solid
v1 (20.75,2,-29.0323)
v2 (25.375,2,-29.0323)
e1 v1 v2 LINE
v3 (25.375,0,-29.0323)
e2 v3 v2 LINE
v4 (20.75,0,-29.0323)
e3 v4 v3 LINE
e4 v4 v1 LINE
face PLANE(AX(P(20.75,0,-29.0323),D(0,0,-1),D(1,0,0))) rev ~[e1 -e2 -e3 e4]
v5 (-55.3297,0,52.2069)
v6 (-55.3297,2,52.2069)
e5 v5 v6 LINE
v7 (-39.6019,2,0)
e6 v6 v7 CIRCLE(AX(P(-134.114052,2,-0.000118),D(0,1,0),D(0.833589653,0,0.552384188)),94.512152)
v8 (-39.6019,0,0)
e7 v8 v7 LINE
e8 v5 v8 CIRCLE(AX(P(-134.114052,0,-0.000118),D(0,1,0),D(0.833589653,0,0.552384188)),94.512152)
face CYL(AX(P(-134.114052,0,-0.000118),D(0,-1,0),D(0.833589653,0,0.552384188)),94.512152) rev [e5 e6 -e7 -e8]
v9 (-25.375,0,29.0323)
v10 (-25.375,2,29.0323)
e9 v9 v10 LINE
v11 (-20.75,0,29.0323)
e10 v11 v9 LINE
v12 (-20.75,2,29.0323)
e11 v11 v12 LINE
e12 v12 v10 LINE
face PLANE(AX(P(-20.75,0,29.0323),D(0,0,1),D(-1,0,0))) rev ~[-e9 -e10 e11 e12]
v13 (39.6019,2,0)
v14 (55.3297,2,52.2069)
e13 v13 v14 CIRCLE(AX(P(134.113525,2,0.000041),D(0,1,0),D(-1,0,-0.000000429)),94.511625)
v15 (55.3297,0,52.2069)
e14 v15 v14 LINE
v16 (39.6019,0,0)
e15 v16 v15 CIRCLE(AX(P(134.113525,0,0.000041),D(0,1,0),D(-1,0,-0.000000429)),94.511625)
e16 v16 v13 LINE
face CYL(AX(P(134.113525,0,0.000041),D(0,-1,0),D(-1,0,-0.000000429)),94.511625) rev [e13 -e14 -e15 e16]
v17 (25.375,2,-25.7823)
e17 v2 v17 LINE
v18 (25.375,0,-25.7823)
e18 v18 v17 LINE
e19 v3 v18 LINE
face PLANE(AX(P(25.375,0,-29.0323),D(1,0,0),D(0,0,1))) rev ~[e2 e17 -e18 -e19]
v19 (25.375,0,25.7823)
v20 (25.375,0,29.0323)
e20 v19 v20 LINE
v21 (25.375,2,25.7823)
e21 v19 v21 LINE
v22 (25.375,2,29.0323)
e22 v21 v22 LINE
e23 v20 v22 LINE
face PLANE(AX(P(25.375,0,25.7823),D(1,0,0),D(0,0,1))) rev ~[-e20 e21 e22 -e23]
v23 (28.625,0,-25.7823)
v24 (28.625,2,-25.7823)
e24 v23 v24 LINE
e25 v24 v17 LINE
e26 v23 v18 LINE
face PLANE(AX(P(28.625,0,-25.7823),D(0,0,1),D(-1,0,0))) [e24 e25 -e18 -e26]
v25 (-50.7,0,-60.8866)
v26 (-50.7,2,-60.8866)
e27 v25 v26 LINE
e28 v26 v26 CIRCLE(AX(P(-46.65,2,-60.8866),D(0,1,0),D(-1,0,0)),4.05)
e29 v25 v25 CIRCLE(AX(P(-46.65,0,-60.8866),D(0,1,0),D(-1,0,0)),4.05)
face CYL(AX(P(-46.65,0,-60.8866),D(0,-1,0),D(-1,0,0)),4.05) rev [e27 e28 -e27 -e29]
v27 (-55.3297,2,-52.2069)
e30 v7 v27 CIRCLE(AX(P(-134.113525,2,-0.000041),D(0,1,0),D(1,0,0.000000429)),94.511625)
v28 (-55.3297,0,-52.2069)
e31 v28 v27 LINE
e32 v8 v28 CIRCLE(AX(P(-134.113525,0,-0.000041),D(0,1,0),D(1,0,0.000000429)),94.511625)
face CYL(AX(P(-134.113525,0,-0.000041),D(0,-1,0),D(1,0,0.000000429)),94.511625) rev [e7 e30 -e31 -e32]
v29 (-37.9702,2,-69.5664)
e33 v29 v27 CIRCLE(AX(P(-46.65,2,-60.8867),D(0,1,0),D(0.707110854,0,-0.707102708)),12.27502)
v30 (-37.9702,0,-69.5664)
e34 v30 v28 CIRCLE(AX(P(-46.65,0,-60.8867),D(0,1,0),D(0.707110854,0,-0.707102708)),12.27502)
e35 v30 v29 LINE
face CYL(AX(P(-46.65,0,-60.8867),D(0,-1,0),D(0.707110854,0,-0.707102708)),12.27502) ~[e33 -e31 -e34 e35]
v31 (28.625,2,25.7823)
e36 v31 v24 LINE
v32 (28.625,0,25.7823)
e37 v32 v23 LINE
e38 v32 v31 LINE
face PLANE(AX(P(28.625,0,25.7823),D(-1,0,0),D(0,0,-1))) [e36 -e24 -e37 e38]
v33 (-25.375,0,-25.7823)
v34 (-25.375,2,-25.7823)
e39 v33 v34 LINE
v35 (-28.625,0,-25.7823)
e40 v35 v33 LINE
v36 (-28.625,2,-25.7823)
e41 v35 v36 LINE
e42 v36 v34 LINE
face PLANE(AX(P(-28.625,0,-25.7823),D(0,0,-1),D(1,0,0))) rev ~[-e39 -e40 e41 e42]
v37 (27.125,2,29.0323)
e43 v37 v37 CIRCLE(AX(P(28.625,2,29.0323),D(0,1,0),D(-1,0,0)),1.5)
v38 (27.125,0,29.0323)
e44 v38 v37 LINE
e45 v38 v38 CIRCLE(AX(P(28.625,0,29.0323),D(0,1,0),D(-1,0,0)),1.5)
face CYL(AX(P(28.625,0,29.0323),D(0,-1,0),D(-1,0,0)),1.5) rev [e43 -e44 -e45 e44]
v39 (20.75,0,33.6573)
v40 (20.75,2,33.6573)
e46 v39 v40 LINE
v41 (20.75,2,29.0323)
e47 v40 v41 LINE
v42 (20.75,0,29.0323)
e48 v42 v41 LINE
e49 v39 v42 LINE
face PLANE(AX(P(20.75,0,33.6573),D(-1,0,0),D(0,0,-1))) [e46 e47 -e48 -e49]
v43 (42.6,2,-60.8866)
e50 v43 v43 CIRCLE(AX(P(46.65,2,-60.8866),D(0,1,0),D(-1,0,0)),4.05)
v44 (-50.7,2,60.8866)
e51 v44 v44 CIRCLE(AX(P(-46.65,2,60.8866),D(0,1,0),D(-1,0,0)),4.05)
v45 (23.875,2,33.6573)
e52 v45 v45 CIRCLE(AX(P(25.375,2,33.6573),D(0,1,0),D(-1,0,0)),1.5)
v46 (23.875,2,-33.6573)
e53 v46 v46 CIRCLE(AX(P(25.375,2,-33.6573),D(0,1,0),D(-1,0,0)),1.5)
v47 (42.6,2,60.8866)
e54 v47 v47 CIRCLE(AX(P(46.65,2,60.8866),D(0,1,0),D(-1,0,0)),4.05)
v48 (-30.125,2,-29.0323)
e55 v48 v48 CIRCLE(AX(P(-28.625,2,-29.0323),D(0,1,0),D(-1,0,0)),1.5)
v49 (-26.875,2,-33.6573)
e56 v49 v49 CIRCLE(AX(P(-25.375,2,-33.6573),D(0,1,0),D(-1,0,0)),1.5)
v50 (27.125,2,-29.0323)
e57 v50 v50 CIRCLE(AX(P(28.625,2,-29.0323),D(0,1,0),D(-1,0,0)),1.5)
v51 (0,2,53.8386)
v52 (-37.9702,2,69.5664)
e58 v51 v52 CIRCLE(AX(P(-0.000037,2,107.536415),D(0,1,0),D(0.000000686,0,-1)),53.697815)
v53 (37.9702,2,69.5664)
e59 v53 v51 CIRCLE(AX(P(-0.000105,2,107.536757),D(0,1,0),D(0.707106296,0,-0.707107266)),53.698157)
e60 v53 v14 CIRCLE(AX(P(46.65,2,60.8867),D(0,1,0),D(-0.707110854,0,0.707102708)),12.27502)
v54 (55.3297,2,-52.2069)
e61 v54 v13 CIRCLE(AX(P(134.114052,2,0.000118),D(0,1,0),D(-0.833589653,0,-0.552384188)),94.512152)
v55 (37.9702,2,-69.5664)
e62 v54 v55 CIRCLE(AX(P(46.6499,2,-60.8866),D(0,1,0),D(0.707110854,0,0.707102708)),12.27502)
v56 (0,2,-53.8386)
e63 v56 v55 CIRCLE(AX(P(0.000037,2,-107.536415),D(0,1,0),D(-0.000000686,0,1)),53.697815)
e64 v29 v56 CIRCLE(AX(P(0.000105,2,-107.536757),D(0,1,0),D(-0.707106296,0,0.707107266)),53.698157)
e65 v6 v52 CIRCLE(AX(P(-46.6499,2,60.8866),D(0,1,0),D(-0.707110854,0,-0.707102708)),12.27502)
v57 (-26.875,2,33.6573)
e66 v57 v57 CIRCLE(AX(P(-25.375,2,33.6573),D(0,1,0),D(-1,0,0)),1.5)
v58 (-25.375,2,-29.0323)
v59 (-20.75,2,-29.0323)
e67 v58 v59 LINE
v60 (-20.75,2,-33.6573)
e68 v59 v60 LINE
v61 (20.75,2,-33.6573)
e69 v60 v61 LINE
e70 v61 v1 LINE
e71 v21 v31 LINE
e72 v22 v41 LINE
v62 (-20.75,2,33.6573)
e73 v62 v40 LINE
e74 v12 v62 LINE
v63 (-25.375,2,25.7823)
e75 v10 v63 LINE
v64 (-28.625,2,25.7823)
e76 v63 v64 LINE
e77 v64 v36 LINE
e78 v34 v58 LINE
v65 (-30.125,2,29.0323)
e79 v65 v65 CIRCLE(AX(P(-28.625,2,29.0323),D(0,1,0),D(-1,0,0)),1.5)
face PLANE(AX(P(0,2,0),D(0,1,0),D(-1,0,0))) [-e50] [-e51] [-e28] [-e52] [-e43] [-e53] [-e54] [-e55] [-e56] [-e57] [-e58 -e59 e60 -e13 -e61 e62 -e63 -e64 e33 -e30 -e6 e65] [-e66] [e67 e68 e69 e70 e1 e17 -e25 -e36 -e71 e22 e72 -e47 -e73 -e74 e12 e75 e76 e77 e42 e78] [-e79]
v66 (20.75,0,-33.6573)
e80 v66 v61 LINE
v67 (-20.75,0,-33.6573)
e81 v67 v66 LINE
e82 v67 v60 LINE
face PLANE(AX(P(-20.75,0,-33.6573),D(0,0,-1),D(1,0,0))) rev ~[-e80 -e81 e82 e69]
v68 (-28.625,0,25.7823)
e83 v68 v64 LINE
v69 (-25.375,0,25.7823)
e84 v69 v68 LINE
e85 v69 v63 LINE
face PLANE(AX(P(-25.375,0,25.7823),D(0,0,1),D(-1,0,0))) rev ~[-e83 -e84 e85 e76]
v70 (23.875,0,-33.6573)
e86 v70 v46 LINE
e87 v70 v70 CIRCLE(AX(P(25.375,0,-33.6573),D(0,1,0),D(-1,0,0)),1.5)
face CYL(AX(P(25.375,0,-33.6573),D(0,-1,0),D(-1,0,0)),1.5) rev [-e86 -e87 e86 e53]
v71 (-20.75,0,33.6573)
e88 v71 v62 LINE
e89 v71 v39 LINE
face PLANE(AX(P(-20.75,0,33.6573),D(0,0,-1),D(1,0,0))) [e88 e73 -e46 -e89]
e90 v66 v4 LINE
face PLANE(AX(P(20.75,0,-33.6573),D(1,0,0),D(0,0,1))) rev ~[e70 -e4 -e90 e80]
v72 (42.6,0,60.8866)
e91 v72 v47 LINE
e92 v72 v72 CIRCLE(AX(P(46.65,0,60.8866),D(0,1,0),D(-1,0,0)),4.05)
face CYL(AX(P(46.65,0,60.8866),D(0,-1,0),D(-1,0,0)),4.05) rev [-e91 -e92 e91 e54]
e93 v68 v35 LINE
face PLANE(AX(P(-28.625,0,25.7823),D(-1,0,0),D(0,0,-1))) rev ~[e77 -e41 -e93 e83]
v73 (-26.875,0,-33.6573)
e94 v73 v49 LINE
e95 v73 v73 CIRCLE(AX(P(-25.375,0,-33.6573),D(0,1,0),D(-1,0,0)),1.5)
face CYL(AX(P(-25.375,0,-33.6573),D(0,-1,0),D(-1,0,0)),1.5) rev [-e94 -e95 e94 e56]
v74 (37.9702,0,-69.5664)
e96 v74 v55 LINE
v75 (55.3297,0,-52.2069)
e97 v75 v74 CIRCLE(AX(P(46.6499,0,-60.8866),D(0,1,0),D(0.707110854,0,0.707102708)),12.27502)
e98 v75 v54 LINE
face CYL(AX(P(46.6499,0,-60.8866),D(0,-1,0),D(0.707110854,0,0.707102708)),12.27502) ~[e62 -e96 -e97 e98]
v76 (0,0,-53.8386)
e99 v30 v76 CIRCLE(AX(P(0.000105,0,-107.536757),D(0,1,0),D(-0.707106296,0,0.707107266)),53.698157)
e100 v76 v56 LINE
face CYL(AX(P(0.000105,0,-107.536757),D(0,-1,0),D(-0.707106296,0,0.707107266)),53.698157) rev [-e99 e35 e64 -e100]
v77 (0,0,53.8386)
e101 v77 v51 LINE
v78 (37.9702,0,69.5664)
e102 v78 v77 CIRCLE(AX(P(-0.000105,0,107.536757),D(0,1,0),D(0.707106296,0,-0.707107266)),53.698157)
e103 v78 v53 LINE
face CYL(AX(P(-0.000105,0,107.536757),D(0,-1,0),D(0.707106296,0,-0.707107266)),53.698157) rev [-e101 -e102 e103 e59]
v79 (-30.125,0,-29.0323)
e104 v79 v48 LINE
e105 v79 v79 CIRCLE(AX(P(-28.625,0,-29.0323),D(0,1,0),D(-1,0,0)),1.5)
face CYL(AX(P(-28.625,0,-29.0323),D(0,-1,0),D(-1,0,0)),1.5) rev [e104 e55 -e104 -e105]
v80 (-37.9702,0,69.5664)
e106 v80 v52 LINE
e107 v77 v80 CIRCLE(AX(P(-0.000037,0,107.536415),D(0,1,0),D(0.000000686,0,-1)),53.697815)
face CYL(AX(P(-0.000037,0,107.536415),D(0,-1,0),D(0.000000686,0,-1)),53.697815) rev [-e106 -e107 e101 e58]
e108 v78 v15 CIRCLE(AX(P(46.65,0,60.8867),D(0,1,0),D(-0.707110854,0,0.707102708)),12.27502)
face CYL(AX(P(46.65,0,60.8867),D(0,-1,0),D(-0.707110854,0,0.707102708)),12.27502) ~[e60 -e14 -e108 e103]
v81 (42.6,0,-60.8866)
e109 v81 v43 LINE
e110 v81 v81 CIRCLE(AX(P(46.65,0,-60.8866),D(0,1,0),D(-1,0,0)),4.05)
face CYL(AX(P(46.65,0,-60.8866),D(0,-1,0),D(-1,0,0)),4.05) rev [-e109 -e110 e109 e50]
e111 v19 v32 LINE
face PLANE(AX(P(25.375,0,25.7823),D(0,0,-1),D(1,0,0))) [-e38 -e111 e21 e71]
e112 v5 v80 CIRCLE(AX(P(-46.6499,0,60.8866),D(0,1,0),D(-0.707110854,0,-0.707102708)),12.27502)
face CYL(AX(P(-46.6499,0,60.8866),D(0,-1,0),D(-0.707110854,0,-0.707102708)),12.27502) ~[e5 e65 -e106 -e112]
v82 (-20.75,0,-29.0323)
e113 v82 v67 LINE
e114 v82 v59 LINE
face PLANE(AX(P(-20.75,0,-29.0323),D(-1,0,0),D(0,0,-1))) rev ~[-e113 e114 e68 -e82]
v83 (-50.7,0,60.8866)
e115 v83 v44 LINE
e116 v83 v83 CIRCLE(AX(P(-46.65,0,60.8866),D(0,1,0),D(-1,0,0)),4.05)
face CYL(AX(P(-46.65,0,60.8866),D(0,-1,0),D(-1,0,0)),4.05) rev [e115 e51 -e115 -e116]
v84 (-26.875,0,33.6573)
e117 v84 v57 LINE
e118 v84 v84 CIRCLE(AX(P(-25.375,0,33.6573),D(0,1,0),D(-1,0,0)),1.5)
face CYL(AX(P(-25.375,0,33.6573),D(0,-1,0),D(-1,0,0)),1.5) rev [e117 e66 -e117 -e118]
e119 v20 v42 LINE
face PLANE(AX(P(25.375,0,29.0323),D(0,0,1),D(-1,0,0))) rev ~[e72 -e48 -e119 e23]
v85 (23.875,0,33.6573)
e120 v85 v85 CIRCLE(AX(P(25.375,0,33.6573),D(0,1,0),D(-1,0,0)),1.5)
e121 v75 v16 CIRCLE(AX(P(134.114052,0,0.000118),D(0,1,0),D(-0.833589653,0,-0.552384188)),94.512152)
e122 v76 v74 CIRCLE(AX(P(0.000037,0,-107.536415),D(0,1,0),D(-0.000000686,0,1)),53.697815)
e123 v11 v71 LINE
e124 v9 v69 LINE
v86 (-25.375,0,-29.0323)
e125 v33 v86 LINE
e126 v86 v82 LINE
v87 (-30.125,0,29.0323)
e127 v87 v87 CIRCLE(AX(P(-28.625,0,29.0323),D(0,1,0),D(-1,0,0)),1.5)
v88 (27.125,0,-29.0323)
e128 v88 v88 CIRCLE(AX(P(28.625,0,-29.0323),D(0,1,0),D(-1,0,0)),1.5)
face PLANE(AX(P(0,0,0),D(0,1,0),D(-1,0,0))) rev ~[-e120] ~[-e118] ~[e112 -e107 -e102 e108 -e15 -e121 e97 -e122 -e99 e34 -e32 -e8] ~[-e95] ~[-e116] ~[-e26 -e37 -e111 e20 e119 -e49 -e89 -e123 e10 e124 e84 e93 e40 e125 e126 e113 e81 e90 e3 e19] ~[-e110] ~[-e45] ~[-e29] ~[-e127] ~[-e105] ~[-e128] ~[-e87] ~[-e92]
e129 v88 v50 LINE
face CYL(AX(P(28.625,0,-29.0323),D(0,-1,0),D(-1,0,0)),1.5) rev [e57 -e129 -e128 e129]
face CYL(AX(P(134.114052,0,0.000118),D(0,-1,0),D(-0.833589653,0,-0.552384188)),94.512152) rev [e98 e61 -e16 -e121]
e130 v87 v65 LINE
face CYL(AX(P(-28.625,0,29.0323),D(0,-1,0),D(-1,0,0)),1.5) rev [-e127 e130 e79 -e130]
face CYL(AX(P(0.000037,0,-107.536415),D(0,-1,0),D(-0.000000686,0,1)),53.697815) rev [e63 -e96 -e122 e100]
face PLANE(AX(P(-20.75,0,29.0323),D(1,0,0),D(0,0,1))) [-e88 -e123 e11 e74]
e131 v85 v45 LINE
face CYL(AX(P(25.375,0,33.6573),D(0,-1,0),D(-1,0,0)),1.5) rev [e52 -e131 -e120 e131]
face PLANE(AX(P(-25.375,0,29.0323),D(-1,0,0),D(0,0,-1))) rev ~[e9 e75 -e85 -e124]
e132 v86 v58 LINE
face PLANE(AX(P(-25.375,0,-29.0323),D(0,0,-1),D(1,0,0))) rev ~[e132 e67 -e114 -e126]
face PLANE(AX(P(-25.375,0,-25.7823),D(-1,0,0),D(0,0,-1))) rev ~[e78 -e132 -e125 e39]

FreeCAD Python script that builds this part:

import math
import FreeCAD as App
import Part
import Sketcher
from FreeCAD import Vector
Q = App.Units.Quantity


def add_polygon(sketch, points):
    """Adds a closed chain of lines whose ends are joined by coincident constraints."""
    first, n = sketch.GeometryCount, len(points)
    for a, b in zip(points, points[1:] + points[:1]):
        sketch.addGeometry(Part.LineSegment(App.Vector(*a, 0), App.Vector(*b, 0)), False)
    for i in range(n):
        sketch.addConstraint(Sketcher.Constraint("Coincident", first + i, 2, first + (i + 1) % n, 1))

doc = App.newDocument("Part")
params = doc.addObject("Spreadsheet::Sheet", "Params")
for row, (alias, value) in enumerate([
    ("sketch1_diameter", "3 mm"),
    ("sketch1_diameter2", "8.1 mm"),
    ("sketch1_width", "3.25 mm"),
    ("sketch1_width2", "41.5 mm"),
    ("pad1_length", "2 mm"),
], start=1):
    params.set(f"A{row}", alias)
    params.set(f"B{row}", "=" + value)
    params.setAlias(f"B{row}", alias)

body = doc.addObject("PartDesign::Body", "Body")

# Sketch on XZ plane
sketch1 = body.newObject("Sketcher::SketchObject", "Sketch")
sketch1.AttachmentSupport = (doc.getObject("XZ_Plane"), [""])
sketch1.MapMode = "FlatFace"
sketch1.addGeometry(Part.ArcOfCircle(Part.Circle(Vector(0, 107.5, 0), Vector(0, 0, 1), 53.7), math.radians(-90), math.radians(-45)), False)  # 0
sketch1.addGeometry(Part.ArcOfCircle(Part.Circle(Vector(46.6, 60.9, 0), Vector(0, 0, 1), 12.3), math.radians(-45), math.radians(135)), False)  # 1
sketch1.addGeometry(Part.ArcOfCircle(Part.Circle(Vector(134.1, 0, 0), Vector(0, 0, 1), 94.5), math.radians(146), math.radians(180)), False)  # 2
sketch1.addGeometry(Part.ArcOfCircle(Part.Circle(Vector(134.1, 0, 0), Vector(0, 0, 1), 94.5), math.radians(180), math.radians(214)), False)  # 3
sketch1.addGeometry(Part.ArcOfCircle(Part.Circle(Vector(46.6, -60.9, 0), Vector(0, 0, 1), 12.3), math.radians(-135), math.radians(45)), False)  # 4
sketch1.addGeometry(Part.ArcOfCircle(Part.Circle(Vector(0, -107.5, 0), Vector(0, 0, 1), 53.7), math.radians(45), math.radians(90)), False)  # 5
sketch1.addGeometry(Part.ArcOfCircle(Part.Circle(Vector(0, -107.5, 0), Vector(0, 0, 1), 53.7), math.radians(90), math.radians(135)), False)  # 6
sketch1.addGeometry(Part.ArcOfCircle(Part.Circle(Vector(-46.6, -60.9, 0), Vector(0, 0, 1), 12.3), math.radians(135), math.radians(315)), False)  # 7
sketch1.addGeometry(Part.ArcOfCircle(Part.Circle(Vector(-134.1, 0, 0), Vector(0, 0, 1), 94.5), math.radians(-34), math.radians(0)), False)  # 8
sketch1.addGeometry(Part.ArcOfCircle(Part.Circle(Vector(-134.1, 0, 0), Vector(0, 0, 1), 94.5), math.radians(0), math.radians(34)), False)  # 9
sketch1.addGeometry(Part.ArcOfCircle(Part.Circle(Vector(-46.6, 60.9, 0), Vector(0, 0, 1), 12.3), math.radians(45), math.radians(225)), False)  # 10
sketch1.addGeometry(Part.ArcOfCircle(Part.Circle(Vector(0, 107.5, 0), Vector(0, 0, 1), 53.7), math.radians(-135), math.radians(-90)), False)  # 11
sketch1.addGeometry(Part.Circle(Vector(46.6, -60.9, 0), Vector(0, 0, 1), 4), False)  # 12
sketch1.addGeometry(Part.Circle(Vector(25.4, -33.7, 0), Vector(0, 0, 1), 1.5), False)  # 13
sketch1.addGeometry(Part.Circle(Vector(28.6, -29, 0), Vector(0, 0, 1), 1.5), False)  # 14
sketch1.addGeometry(Part.Circle(Vector(-46.6, -60.9, 0), Vector(0, 0, 1), 4), False)  # 15
sketch1.addGeometry(Part.Circle(Vector(-25.4, -33.7, 0), Vector(0, 0, 1), 1.5), False)  # 16
sketch1.addGeometry(Part.Circle(Vector(-28.6, -29, 0), Vector(0, 0, 1), 1.5), False)  # 17
add_polygon(sketch1, [(-28.6, 25.8), (-28.6, -25.8), (-25.4, -25.8), (-25.4, -29), (-20.8, -29), (-20.8, -33.7), (20.8, -33.7), (20.8, -29), (25.4, -29), (25.4, -25.8), (28.6, -25.8), (28.6, 25.8), (25.4, 25.8), (25.4, 29), (20.8, 29), (20.8, 33.7), (-20.8, 33.7), (-20.8, 29), (-25.4, 29), (-25.4, 25.8)])  # lines 18-37
sketch1.addGeometry(Part.Circle(Vector(28.6, 29, 0), Vector(0, 0, 1), 1.5), False)  # 38
sketch1.addGeometry(Part.Circle(Vector(25.4, 33.7, 0), Vector(0, 0, 1), 1.5), False)  # 39
sketch1.addGeometry(Part.Circle(Vector(46.6, 60.9, 0), Vector(0, 0, 1), 4), False)  # 40
sketch1.addGeometry(Part.Circle(Vector(-28.6, 29, 0), Vector(0, 0, 1), 1.5), False)  # 41
sketch1.addGeometry(Part.Circle(Vector(-25.4, 33.7, 0), Vector(0, 0, 1), 1.5), False)  # 42
sketch1.addGeometry(Part.Circle(Vector(-46.6, 60.9, 0), Vector(0, 0, 1), 4), False)  # 43
sketch1.addConstraint([
    Sketcher.Constraint("Tangent", 0, 2, 1, 2),
    Sketcher.Constraint("Coincident", 1, 1, 2, 1),
    Sketcher.Constraint("Tangent", 2, 2, 3, 1),
    Sketcher.Constraint("Coincident", 3, 2, 4, 2),
    Sketcher.Constraint("Tangent", 4, 1, 5, 1),
    Sketcher.Constraint("Tangent", 5, 2, 6, 1),
    Sketcher.Constraint("Tangent", 6, 2, 7, 2),
    Sketcher.Constraint("Coincident", 7, 1, 8, 1),
    Sketcher.Constraint("Tangent", 8, 2, 9, 1),
    Sketcher.Constraint("Coincident", 9, 2, 10, 2),
    Sketcher.Constraint("Tangent", 10, 1, 11, 1),
    Sketcher.Constraint("Tangent", 11, 2, 0, 1),
    Sketcher.Constraint("Vertical", 18),
    Sketcher.Constraint("Horizontal", 19),
    Sketcher.Constraint("Vertical", 20),
    Sketcher.Constraint("Horizontal", 21),
    Sketcher.Constraint("Vertical", 22),
    Sketcher.Constraint("Horizontal", 23),
    Sketcher.Constraint("Vertical", 24),
    Sketcher.Constraint("Horizontal", 25),
    Sketcher.Constraint("Vertical", 26),
    Sketcher.Constraint("Horizontal", 27),
    Sketcher.Constraint("Vertical", 28),
    Sketcher.Constraint("Horizontal", 29),
    Sketcher.Constraint("Vertical", 30),
    Sketcher.Constraint("Horizontal", 31),
    Sketcher.Constraint("Vertical", 32),
    Sketcher.Constraint("Horizontal", 33),
    Sketcher.Constraint("Vertical", 34),
    Sketcher.Constraint("Horizontal", 35),
    Sketcher.Constraint("Vertical", 36),
    Sketcher.Constraint("Horizontal", 37),
    Sketcher.Constraint("Coincident", 12, 3, 4, 3),
    Sketcher.Constraint("Coincident", 15, 3, 7, 3),
    Sketcher.Constraint("Coincident", 40, 3, 1, 3),
    Sketcher.Constraint("Coincident", 43, 3, 10, 3),
    Sketcher.Constraint("Equal", 2, 3),
    Sketcher.Constraint("Equal", 1, 4),
    Sketcher.Constraint("Equal", 0, 5),
    Sketcher.Constraint("Equal", 5, 6),
    Sketcher.Constraint("Equal", 4, 7),
    Sketcher.Constraint("Equal", 3, 8),
    Sketcher.Constraint("Equal", 8, 9),
    Sketcher.Constraint("Equal", 7, 10),
    Sketcher.Constraint("Equal", 6, 11),
    Sketcher.Constraint("Equal", 13, 14),
    Sketcher.Constraint("Equal", 12, 15),
    Sketcher.Constraint("Equal", 14, 16),
    Sketcher.Constraint("Equal", 16, 17),
    Sketcher.Constraint("Equal", 17, 38),
    Sketcher.Constraint("Equal", 38, 39),
    Sketcher.Constraint("Equal", 15, 40),
    Sketcher.Constraint("Equal", 39, 41),
    Sketcher.Constraint("Equal", 41, 42),
    Sketcher.Constraint("Equal", 40, 43),
    Sketcher.Constraint("Symmetric", 0, 3, 5, 3, -1, 1),
    Sketcher.Constraint("Symmetric", 2, 3, 8, 3, -1, 1),
    Sketcher.Constraint("Symmetric", 17, 3, 38, 3, -1, 1),
    Sketcher.Constraint("Symmetric", 16, 3, 39, 3, -1, 1),
    Sketcher.Constraint("Symmetric", 14, 3, 41, 3, -1, 1),
    Sketcher.Constraint("Symmetric", 13, 3, 42, 3, -1, 1),
    Sketcher.Constraint("Symmetric", 18, 2, 28, 2, -1, 1),
    Sketcher.Constraint("Symmetric", 20, 2, 30, 2, -1, 1),
    Sketcher.Constraint("Symmetric", 22, 2, 32, 2, -1, 1),
    Sketcher.Constraint("Symmetric", 24, 2, 34, 2, -1, 1),
    Sketcher.Constraint("Symmetric", 26, 2, 36, 2, -1, 1),
    Sketcher.Constraint("Symmetric", 4, 3, 7, 3, -2),
    Sketcher.Constraint("Symmetric", 13, 3, 16, 3, -2),
    Sketcher.Constraint("Symmetric", 14, 3, 17, 3, -2),
    Sketcher.Constraint("Symmetric", 21, 2, 24, 2, -2),
    Sketcher.Constraint("Symmetric", 19, 2, 26, 2, -2),
    Sketcher.Constraint("PointOnObject", 2, 3, -1),
    Sketcher.Constraint("PointOnObject", 2, 2, -1),
    Sketcher.Constraint("PointOnObject", 5, 2, -2),
    Sketcher.Constraint("PointOnObject", 8, 2, -1),
    Sketcher.Constraint("PointOnObject", 11, 2, -2),
    Sketcher.Constraint("Horizontal", 1, 3, 10, 3),
    Sketcher.Constraint("Horizontal", 17, 3, 20, 2),
    Sketcher.Constraint("Horizontal", 16, 3, 22, 2),
    Sketcher.Constraint("Vertical", 1, 3, 4, 3),
    Sketcher.Constraint("Vertical", 41, 3, 18, 2),
    Sketcher.Constraint("Vertical", 42, 3, 19, 2),
    Sketcher.Constraint("Equal", 37, 20),
    Sketcher.Constraint("Equal", 35, 22),
    Sketcher.Constraint("Diameter", 13, Q("3 mm")),
    Sketcher.Constraint("Diameter", 12, Q("8.1 mm")),
    Sketcher.Constraint("DistanceX", 19, 1, 19, 2, Q("3.25 mm")),
    Sketcher.Constraint("DistanceX", 21, 1, 21, 2, Q("4.625 mm")),
    Sketcher.Constraint("DistanceX", 23, 1, 23, 2, Q("41.5 mm")),
    Sketcher.Constraint("Radius", 0, Q("53.698 mm")),
    Sketcher.Constraint("Radius", 1, Q("12.275 mm")),
    Sketcher.Constraint("Radius", 3, Q("94.512 mm")),
    Sketcher.Constraint("DistanceX", 7, 3, 4, 3, Q("93.3 mm")),
    Sketcher.Constraint("DistanceY", 18, 2, 18, 1, Q("51.5646 mm")),
    Sketcher.Constraint("DistanceX", -1, 1, 2, 2, Q("39.602 mm")),
    Sketcher.Constraint("DistanceY", 3, 2, -1, 1, Q("52.207 mm")),
])
sketch1.setExpression("Constraints[104]", "Params.sketch1_diameter")
sketch1.setExpression("Constraints[105]", "Params.sketch1_diameter2")
sketch1.setExpression("Constraints[106]", "Params.sketch1_width")
sketch1.setExpression("Constraints[108]", "Params.sketch1_width2")
pad1 = body.newObject("PartDesign::Pad", "Pad")
pad1.Profile = sketch1
pad1.setExpression("Length", "Params.pad1_length")
pad1.Reversed = True

doc.recompute()
